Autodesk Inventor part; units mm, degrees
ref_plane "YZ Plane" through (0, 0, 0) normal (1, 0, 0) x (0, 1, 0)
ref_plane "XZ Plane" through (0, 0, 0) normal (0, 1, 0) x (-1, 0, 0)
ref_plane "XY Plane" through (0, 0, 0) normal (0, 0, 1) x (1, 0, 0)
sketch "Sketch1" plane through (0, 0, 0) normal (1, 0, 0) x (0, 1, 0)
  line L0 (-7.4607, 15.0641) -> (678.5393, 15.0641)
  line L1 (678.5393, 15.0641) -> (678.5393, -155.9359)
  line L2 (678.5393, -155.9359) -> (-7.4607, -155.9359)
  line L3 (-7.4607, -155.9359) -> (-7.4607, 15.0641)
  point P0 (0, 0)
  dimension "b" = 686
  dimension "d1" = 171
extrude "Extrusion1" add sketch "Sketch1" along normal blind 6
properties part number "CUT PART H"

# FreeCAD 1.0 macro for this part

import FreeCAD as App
import Part
import Sketcher

V = App.Vector

doc = App.newDocument("Part")
body = doc.addObject("PartDesign::Body", "Body")

# Sketch on YZ plane
sketch1 = doc.addObject("Sketcher::SketchObject", "Sketch")
body.addObject(sketch1)
sketch1.AttachmentSupport = (doc.YZ_Plane, [""])
sketch1.MapMode = "FlatFace"
sketch1.addGeometry([
    Part.LineSegment(V(679, 15, 0), V(-7, 15, 0)),
    Part.LineSegment(V(-7, 15, 0), V(-7, -156, 0)),
    Part.LineSegment(V(-7, -156, 0), V(679, -156, 0)),
    Part.LineSegment(V(679, -156, 0), V(679, 15, 0)),
], False)
sketch1.addConstraint([
    Sketcher.Constraint("Coincident", 0, 2, 1, 1),
    Sketcher.Constraint("Coincident", 1, 2, 2, 1),
    Sketcher.Constraint("Coincident", 2, 2, 3, 1),
    Sketcher.Constraint("Coincident", 3, 2, 0, 1),
    Sketcher.Constraint("Horizontal", 0),
    Sketcher.Constraint("Vertical", 1),
    Sketcher.Constraint("Horizontal", 2),
    Sketcher.Constraint("Vertical", 3),
    Sketcher.Constraint("DistanceX", 0, 2, 0, 1, 686.0),
    Sketcher.Constraint("DistanceY", 1, 2, 1, 1, 171.0),
    Sketcher.Constraint("DistanceY", -1, 1, 0, 2, 15.064),
    Sketcher.Constraint("DistanceX", 0, 2, -1, 1, 7.4607),
])
pad1 = doc.addObject("PartDesign::Pad", "Pad")
body.addObject(pad1)
pad1.Profile = sketch1
pad1.Length = 6

doc.recompute()
